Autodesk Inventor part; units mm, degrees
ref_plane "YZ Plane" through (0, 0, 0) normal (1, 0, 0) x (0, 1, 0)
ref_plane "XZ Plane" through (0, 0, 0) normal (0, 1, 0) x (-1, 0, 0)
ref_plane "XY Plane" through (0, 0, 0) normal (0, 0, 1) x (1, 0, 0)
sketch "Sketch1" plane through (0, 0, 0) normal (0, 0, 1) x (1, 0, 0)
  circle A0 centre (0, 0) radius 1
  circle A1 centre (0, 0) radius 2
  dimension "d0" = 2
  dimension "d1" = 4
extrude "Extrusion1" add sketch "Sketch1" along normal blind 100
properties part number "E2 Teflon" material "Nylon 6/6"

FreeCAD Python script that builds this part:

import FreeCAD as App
import Part
import Sketcher
from FreeCAD import Vector

doc = App.newDocument("Part")
params = doc.addObject("Spreadsheet::Sheet", "Params")
for row, (alias, value) in enumerate([
    ("sketch1_diameter", "4 mm"),
    ("sketch1_diameter2", "2 mm"),
    ("pad1_length", "100 mm"),
], start=1):
    params.set(f"A{row}", alias)
    params.set(f"B{row}", "=" + value)
    params.setAlias(f"B{row}", alias)

body = doc.addObject("PartDesign::Body", "Body")

sketch1 = body.newObject("Sketcher::SketchObject", "Sketch")
sketch1.AttachmentSupport = (doc.getObject("XY_Plane"), [""])
sketch1.MapMode = "FlatFace"
sketch1.addGeometry([
    Part.Circle(Vector(0, 0, 0), Vector(0, 0, 1), 2),
    Part.Circle(Vector(0, 0, 0), Vector(0, 0, 1), 1),
], False)
sketch1.addConstraint([
    Sketcher.Constraint("Coincident", 0, 3, -1, 1),
    Sketcher.Constraint("Coincident", 1, 3, -1, 1),
    Sketcher.Constraint("Diameter", 0, 4.0),
    Sketcher.Constraint("Diameter", 1, 2.0),
])
sketch1.setExpression("Constraints[2]", "Params.sketch1_diameter")
sketch1.setExpression("Constraints[3]", "Params.sketch1_diameter2")
pad1 = body.newObject("PartDesign::Pad", "Pad")
pad1.Profile = sketch1
pad1.setExpression("Length", "Params.pad1_length")

doc.recompute()
